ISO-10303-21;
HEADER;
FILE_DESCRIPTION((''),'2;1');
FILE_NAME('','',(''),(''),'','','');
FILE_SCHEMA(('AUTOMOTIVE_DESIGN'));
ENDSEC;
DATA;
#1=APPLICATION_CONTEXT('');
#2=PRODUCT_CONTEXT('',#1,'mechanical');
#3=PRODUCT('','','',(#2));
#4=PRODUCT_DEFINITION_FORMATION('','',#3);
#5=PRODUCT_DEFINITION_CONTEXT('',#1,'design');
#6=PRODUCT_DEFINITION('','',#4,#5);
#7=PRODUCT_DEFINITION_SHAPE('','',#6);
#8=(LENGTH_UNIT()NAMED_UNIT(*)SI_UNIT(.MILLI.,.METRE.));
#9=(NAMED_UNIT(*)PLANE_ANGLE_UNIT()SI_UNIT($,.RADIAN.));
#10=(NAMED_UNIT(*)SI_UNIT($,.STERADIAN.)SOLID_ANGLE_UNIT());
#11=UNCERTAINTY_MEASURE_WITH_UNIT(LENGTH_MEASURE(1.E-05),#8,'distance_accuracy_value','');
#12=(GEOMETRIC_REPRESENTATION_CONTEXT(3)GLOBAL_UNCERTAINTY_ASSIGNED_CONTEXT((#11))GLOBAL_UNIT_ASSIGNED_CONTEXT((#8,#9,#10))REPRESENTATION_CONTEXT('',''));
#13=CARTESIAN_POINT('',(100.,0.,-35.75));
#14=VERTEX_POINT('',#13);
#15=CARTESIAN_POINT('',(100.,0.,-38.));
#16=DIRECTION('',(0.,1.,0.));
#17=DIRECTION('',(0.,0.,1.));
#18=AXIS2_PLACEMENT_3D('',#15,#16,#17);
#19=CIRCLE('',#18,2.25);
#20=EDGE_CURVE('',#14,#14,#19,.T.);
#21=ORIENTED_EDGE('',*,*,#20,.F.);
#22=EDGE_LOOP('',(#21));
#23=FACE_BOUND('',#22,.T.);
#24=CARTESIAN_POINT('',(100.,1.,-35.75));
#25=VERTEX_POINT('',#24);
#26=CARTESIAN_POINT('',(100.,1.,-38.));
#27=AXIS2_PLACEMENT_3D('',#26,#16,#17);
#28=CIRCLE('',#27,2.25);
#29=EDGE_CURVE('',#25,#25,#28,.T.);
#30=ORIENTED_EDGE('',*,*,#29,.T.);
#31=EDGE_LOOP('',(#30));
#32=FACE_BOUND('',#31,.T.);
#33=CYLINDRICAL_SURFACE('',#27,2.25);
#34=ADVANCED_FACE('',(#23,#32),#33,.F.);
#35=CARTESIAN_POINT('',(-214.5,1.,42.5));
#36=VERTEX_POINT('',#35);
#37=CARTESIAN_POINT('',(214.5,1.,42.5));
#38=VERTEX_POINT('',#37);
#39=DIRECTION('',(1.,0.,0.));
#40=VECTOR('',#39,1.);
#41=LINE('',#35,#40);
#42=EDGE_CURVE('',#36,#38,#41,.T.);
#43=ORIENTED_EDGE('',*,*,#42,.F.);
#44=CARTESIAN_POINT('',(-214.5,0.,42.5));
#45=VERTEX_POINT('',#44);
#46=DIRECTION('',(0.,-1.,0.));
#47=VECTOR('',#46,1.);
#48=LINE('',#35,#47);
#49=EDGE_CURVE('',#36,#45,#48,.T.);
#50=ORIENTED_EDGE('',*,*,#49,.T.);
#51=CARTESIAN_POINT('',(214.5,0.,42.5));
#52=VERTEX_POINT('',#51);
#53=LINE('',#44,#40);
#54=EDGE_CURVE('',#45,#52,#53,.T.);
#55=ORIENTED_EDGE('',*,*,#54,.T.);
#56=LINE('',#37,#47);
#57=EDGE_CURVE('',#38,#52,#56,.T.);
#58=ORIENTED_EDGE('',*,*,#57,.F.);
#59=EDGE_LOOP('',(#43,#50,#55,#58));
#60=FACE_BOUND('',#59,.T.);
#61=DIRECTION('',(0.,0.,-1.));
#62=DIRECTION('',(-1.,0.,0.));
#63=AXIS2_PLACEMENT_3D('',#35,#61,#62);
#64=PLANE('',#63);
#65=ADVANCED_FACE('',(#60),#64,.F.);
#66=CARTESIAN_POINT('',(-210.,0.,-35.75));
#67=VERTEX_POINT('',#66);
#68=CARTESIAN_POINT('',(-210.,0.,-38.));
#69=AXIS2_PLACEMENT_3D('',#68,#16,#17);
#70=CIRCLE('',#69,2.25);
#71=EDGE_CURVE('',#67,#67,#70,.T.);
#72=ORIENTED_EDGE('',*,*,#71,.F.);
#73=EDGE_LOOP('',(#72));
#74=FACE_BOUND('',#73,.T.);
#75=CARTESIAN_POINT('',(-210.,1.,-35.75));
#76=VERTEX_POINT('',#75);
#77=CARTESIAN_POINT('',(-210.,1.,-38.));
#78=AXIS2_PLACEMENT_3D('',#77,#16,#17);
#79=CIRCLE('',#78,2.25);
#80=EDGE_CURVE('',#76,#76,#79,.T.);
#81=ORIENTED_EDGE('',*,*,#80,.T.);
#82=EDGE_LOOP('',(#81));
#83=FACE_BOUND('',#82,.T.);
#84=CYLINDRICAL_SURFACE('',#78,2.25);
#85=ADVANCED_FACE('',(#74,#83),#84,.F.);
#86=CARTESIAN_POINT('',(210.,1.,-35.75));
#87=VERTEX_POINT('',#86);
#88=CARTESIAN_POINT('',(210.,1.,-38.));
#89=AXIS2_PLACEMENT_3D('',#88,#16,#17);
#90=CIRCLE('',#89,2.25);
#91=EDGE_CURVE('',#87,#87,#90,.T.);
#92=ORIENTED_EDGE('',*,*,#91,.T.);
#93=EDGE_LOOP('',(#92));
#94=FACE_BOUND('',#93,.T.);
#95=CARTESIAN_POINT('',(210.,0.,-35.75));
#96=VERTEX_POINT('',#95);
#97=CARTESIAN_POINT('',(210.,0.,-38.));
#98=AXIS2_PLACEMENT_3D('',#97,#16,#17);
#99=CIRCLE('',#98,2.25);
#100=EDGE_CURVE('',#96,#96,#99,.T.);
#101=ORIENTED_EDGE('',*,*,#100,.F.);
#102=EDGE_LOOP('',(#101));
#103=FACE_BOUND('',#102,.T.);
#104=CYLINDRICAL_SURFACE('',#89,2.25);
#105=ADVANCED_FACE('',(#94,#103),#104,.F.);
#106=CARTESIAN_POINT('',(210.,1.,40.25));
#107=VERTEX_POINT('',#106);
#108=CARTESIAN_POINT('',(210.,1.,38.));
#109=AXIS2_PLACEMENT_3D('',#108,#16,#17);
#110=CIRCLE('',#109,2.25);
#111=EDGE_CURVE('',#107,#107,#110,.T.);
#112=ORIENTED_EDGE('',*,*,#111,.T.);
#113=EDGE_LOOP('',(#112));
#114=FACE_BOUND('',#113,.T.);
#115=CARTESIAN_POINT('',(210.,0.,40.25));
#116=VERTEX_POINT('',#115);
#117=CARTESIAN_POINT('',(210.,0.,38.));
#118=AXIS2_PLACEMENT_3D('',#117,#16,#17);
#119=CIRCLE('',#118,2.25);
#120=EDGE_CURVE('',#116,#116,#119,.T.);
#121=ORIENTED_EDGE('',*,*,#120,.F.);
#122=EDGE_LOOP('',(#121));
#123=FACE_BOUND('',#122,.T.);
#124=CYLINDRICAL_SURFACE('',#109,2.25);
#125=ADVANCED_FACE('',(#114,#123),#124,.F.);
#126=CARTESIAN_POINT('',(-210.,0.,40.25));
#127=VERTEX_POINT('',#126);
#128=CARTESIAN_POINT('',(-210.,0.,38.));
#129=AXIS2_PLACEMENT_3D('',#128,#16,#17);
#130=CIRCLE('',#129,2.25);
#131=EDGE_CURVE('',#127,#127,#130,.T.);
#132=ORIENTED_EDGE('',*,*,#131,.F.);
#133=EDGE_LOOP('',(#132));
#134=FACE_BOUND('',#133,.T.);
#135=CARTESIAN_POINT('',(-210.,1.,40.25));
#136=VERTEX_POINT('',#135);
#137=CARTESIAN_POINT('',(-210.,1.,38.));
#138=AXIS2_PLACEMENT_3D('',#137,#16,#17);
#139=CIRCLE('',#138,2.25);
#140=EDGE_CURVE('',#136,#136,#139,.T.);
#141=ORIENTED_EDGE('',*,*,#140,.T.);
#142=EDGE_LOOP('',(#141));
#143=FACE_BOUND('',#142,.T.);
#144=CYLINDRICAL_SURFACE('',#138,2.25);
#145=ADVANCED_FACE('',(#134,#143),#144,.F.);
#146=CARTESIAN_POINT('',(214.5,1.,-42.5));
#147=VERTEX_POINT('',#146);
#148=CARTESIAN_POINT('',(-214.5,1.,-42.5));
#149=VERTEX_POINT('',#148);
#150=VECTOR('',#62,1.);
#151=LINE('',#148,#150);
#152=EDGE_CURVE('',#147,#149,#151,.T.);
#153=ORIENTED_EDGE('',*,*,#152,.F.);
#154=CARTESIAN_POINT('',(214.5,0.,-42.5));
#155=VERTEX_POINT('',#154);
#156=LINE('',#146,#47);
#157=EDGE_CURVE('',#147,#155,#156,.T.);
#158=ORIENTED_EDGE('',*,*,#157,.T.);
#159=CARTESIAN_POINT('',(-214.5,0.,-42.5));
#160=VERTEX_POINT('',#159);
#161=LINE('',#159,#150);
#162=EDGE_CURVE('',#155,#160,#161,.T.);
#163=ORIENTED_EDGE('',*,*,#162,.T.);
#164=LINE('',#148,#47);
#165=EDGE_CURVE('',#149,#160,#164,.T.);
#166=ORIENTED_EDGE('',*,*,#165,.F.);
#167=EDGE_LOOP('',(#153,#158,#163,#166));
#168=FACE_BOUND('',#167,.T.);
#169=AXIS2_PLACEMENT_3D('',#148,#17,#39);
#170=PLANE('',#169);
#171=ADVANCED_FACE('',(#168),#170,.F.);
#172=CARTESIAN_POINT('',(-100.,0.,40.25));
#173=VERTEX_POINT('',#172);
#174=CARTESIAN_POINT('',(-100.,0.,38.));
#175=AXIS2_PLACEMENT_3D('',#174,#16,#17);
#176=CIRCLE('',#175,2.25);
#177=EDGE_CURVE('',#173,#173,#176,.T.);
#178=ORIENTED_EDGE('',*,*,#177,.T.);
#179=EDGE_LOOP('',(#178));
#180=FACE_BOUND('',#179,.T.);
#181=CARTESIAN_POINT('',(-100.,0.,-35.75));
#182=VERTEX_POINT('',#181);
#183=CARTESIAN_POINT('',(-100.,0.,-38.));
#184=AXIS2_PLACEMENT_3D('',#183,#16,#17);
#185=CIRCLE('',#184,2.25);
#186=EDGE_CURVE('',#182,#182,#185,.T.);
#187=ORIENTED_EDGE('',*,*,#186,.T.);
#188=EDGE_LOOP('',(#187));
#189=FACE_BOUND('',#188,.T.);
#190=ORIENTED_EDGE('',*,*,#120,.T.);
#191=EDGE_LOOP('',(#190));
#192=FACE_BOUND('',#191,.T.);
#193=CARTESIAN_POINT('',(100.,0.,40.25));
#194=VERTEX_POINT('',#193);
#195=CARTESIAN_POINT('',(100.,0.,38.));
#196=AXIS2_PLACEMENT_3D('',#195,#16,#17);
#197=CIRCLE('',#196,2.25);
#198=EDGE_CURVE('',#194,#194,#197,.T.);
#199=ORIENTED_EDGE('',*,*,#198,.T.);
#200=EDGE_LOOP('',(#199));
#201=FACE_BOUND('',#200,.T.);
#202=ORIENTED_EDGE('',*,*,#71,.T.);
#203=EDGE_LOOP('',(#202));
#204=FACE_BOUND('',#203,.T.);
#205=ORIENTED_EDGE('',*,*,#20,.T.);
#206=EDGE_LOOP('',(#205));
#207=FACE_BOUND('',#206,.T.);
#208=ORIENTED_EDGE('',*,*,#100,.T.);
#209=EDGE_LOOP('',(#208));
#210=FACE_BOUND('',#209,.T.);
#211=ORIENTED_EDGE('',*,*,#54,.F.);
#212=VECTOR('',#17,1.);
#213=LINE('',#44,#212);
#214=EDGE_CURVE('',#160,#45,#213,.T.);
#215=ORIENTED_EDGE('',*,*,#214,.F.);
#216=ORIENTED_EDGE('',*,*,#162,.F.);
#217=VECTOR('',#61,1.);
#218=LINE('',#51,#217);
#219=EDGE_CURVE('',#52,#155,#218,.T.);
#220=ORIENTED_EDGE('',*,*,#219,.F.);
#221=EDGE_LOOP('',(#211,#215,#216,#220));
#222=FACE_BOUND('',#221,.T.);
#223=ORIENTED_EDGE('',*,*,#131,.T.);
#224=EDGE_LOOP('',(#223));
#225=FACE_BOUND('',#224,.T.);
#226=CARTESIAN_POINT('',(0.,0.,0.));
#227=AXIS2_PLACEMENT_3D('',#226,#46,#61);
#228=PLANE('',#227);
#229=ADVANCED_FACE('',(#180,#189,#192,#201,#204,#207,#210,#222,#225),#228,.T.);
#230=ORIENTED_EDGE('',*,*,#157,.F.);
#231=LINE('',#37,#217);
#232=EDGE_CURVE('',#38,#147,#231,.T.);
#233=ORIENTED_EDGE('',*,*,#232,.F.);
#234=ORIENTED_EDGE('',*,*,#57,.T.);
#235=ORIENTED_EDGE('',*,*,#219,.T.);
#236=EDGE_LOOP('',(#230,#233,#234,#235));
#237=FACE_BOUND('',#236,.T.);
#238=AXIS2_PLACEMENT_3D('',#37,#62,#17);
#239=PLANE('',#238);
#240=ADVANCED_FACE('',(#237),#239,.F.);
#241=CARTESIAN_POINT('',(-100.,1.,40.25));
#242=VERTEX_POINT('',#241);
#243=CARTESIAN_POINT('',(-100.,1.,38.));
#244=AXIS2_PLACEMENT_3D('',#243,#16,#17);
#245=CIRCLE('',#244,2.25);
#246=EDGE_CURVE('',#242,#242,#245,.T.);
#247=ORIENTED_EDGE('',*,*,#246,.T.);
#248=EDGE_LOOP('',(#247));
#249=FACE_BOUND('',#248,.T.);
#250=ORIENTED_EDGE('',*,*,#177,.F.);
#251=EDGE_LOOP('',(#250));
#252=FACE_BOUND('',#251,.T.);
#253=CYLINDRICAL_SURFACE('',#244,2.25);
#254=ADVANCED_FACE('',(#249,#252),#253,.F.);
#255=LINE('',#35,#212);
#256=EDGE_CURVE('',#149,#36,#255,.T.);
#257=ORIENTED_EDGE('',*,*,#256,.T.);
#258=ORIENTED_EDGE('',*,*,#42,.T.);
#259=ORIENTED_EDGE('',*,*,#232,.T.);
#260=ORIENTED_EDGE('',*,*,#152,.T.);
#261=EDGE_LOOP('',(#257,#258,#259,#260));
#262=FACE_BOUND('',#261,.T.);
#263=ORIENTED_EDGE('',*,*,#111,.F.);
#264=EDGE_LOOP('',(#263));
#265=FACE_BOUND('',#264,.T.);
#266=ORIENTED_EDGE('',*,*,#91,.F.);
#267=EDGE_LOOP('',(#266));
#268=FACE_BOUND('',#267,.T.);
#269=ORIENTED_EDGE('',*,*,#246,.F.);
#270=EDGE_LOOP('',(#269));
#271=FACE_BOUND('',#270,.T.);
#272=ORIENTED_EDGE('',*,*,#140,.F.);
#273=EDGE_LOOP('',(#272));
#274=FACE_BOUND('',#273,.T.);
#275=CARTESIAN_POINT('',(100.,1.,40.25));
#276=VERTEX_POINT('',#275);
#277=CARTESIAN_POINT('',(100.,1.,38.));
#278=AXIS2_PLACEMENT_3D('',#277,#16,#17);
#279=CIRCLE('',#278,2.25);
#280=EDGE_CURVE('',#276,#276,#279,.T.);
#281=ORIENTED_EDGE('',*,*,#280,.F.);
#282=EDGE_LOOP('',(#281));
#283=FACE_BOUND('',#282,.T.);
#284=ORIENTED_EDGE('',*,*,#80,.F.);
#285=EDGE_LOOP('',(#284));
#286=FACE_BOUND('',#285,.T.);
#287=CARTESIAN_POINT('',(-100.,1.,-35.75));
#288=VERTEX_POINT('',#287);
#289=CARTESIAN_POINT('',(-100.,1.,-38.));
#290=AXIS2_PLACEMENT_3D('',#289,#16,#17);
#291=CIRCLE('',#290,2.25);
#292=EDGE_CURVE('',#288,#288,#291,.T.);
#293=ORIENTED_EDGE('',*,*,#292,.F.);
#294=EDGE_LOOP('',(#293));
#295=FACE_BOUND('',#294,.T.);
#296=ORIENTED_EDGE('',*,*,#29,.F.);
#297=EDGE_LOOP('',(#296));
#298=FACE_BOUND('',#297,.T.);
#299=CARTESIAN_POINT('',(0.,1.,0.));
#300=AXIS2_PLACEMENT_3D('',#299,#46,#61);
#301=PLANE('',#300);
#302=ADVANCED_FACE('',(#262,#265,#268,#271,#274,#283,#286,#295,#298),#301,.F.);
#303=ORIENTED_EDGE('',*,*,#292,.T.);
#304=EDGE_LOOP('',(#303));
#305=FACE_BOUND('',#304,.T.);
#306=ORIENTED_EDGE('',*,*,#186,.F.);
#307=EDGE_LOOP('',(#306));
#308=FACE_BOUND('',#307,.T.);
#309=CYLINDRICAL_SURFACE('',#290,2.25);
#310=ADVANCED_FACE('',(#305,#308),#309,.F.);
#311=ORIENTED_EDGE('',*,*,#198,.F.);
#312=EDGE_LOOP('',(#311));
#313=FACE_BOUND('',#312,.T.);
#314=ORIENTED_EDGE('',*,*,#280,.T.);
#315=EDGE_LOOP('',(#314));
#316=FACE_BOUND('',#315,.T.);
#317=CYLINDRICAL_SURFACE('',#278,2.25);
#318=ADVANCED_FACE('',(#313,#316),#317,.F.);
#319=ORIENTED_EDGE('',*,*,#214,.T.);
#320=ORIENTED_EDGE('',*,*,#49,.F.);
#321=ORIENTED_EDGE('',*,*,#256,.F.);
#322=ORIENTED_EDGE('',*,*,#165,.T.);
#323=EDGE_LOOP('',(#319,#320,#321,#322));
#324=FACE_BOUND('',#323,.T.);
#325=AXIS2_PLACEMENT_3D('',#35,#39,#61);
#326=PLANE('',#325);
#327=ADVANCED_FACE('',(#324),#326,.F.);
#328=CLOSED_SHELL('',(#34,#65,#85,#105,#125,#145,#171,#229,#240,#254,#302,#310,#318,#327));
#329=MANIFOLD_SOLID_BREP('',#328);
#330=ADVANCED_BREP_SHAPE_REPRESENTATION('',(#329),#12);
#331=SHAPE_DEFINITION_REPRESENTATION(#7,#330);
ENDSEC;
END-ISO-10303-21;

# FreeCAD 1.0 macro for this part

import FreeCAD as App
import Part
import Sketcher
Q = App.Units.Quantity

doc = App.newDocument("Part")
body = doc.addObject("PartDesign::Body", "Body")

sketch1 = body.newObject("Sketcher::SketchObject", "Sketch")
sketch1.AttachmentSupport = (doc.getObject("XZ_Plane"), [""])
sketch1.MapMode = "FlatFace"
sketch1.addGeometry([
    Part.LineSegment(App.Vector(-214, -42, 0), App.Vector(-214, 42, 0)),
    Part.LineSegment(App.Vector(-214, 42, 0), App.Vector(214, 42, 0)),
    Part.LineSegment(App.Vector(214, 42, 0), App.Vector(214, -42, 0)),
    Part.LineSegment(App.Vector(214, -42, 0), App.Vector(-214, -42, 0)),
], False)
sketch1.addConstraint([
    Sketcher.Constraint("Coincident", 0, 2, 1, 1),
    Sketcher.Constraint("Coincident", 1, 2, 2, 1),
    Sketcher.Constraint("Coincident", 2, 2, 3, 1),
    Sketcher.Constraint("Coincident", 3, 2, 0, 1),
    Sketcher.Constraint("Vertical", 0),
    Sketcher.Constraint("Horizontal", 1),
    Sketcher.Constraint("Vertical", 2),
    Sketcher.Constraint("Horizontal", 3),
    Sketcher.Constraint("Symmetric", 0, 2, 2, 2, -1, 1),
    Sketcher.Constraint("DistanceX", 1, 1, 1, 2, Q("429 mm")),
    Sketcher.Constraint("DistanceY", 0, 1, 0, 2, Q("85 mm")),
])
pad1 = body.newObject("PartDesign::Pad", "Pad")
pad1.Profile = sketch1
pad1.Length = 1
pad1.Reversed = True

sketch2 = body.newObject("Sketcher::SketchObject", "Sketch001")
sketch2.AttachmentSupport = (doc.getObject("XZ_Plane"), [""])
sketch2.MapMode = "FlatFace"
sketch2.AttachmentOffset = App.Placement(App.Vector(0, 0, -1), App.Rotation())
sketch2.addGeometry([
    Part.Circle(App.Vector(-210, -38, 0), App.Vector(0, 0, 1), 2.2),
    Part.Circle(App.Vector(210, -38, 0), App.Vector(0, 0, 1), 2.2),
    Part.Circle(App.Vector(-100, -38, 0), App.Vector(0, 0, 1), 2.2),
    Part.Circle(App.Vector(100, -38, 0), App.Vector(0, 0, 1), 2.2),
    Part.Circle(App.Vector(100, 38, 0), App.Vector(0, 0, 1), 2.2),
    Part.Circle(App.Vector(-100, 38, 0), App.Vector(0, 0, 1), 2.2),
    Part.Circle(App.Vector(210, 38, 0), App.Vector(0, 0, 1), 2.2),
    Part.Circle(App.Vector(-210, 38, 0), App.Vector(0, 0, 1), 2.2),
], False)
sketch2.addConstraint([
    Sketcher.Constraint("Equal", 0, 1),
    Sketcher.Constraint("Equal", 1, 2),
    Sketcher.Constraint("Equal", 2, 3),
    Sketcher.Constraint("Equal", 3, 4),
    Sketcher.Constraint("Equal", 4, 5),
    Sketcher.Constraint("Equal", 5, 6),
    Sketcher.Constraint("Equal", 6, 7),
    Sketcher.Constraint("Symmetric", 2, 3, 4, 3, -1, 1),
    Sketcher.Constraint("Symmetric", 3, 3, 5, 3, -1, 1),
    Sketcher.Constraint("Symmetric", 0, 3, 6, 3, -1, 1),
    Sketcher.Constraint("Symmetric", 1, 3, 7, 3, -1, 1),
    Sketcher.Constraint("Symmetric", 0, 3, 1, 3, -2),
    Sketcher.Constraint("Symmetric", 2, 3, 3, 3, -2),
    Sketcher.Constraint("Horizontal", 1, 3, 2, 3),
    Sketcher.Constraint("Diameter", 0, Q("4.5 mm")),
    Sketcher.Constraint("DistanceX", 0, 3, -1, 1, Q("210 mm")),
    Sketcher.Constraint("DistanceY", 0, 3, -1, 1, Q("38 mm")),
    Sketcher.Constraint("DistanceX", 2, 3, -1, 1, Q("100 mm")),
])
doc.recompute()
hole = body.newObject("PartDesign::Hole", "Hole")
hole.Profile = sketch2
hole.ThreadType = "None"
hole.Diameter = 4.5
hole.DepthType = "ThroughAll"
hole.Reversed = True

doc.recompute()
